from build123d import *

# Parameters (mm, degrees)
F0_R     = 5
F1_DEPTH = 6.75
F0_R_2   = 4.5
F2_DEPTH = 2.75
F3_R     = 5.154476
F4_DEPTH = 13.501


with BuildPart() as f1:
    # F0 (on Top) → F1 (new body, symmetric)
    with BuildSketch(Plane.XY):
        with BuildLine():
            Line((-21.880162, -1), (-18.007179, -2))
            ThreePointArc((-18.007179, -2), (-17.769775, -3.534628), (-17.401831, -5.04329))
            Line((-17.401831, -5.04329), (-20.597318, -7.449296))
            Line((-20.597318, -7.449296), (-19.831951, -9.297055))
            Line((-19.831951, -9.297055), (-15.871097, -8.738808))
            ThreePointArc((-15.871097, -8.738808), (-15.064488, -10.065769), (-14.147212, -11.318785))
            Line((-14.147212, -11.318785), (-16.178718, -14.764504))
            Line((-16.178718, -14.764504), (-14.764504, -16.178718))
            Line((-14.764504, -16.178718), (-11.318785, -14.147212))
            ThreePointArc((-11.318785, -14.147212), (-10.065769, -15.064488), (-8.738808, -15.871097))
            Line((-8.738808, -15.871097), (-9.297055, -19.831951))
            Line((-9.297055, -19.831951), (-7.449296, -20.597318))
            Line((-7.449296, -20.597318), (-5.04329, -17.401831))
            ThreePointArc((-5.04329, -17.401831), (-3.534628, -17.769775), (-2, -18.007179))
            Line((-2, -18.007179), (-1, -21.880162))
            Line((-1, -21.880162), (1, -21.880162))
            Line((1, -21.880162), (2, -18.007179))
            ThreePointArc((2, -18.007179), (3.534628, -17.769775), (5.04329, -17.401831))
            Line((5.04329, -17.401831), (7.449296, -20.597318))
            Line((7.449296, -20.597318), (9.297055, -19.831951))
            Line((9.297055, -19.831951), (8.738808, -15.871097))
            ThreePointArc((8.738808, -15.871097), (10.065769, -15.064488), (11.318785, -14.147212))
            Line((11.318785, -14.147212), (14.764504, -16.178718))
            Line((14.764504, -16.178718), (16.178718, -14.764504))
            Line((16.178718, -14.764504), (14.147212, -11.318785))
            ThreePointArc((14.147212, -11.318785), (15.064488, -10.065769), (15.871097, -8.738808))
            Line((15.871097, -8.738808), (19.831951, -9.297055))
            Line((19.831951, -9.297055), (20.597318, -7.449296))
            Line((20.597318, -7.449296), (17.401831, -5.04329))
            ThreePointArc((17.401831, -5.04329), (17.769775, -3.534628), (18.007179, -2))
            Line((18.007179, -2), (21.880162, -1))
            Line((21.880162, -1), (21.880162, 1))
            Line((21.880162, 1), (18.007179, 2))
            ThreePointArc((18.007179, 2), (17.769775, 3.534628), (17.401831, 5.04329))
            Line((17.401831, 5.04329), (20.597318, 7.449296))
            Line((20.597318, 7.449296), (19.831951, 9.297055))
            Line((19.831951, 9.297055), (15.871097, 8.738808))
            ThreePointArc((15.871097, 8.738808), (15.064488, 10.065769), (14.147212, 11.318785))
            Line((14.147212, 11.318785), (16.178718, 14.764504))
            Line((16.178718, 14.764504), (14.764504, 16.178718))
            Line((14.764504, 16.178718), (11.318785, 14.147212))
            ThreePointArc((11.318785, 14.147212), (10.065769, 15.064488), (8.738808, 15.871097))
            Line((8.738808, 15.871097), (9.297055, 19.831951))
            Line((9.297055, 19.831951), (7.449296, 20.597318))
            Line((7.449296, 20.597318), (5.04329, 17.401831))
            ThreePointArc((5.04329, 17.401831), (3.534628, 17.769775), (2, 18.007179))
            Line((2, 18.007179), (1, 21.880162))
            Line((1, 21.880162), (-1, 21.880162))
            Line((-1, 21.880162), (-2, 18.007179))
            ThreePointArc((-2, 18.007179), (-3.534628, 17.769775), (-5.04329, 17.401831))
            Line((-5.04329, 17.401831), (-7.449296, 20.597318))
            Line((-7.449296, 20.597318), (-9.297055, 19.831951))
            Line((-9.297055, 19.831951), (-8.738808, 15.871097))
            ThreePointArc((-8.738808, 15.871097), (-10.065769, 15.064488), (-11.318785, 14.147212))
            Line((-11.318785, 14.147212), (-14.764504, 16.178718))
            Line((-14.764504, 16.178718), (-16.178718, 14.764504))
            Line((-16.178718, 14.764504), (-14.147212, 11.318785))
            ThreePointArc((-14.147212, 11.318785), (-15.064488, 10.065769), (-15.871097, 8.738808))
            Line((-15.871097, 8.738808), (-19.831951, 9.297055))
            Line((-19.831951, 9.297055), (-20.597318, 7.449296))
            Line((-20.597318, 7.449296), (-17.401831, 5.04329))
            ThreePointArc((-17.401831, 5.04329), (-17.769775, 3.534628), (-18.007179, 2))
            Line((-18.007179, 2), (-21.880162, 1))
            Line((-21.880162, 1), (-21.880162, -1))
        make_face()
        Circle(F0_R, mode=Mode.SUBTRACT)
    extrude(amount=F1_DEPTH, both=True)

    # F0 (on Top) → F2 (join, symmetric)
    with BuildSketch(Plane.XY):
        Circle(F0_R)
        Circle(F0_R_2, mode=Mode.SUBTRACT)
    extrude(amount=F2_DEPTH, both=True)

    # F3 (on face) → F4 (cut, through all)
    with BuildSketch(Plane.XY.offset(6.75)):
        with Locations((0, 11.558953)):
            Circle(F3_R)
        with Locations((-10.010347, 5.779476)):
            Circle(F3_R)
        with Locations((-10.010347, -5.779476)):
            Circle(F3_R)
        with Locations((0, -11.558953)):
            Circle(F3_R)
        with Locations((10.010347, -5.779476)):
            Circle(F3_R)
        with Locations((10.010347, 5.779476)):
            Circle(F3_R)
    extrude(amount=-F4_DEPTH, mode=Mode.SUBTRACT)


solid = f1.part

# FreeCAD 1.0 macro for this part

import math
import FreeCAD as App
import Part
import Sketcher
from FreeCAD import Vector
Q = App.Units.Quantity

doc = App.newDocument("Part")
body = doc.addObject("PartDesign::Body", "Body")

sketch1 = body.newObject("Sketcher::SketchObject", "Sketch")
sketch1.AttachmentSupport = (doc.getObject("XY_Plane"), [""])
sketch1.MapMode = "FlatFace"
sketch1.addGeometry([
    Part.LineSegment(Vector(-21.880162, -1, 0), Vector(-18.007179, -2, 0)),
    Part.ArcOfCircle(Part.Circle(Vector(-0.000021, -0.000004, 0), Vector(0, 0, 1), 18.117884), math.radians(-173.662321), math.radians(-163.837679)),
    Part.LineSegment(Vector(-17.401831, -5.04329, 0), Vector(-20.597318, -7.449296, 0)),
    Part.LineSegment(Vector(-20.597318, -7.449296, 0), Vector(-19.831951, -9.297055, 0)),
    Part.LineSegment(Vector(-19.831951, -9.297055, 0), Vector(-15.871097, -8.738808, 0)),
    Part.ArcOfCircle(Part.Circle(Vector(-0.000067, -0.000048, 0), Vector(0, 0, 1), 18.117823), math.radians(-151.162346), math.radians(-141.33767)),
    Part.LineSegment(Vector(-14.147212, -11.318785, 0), Vector(-16.178718, -14.764504, 0)),
    Part.LineSegment(Vector(-16.178718, -14.764504, 0), Vector(-14.764504, -16.178718, 0)),
    Part.LineSegment(Vector(-14.764504, -16.178718, 0), Vector(-11.318785, -14.147212, 0)),
    Part.ArcOfCircle(Part.Circle(Vector(-0.000048, -0.000067, 0), Vector(0, 0, 1), 18.117823), math.radians(-128.66233), math.radians(-118.837654)),
    Part.LineSegment(Vector(-8.738808, -15.871097, 0), Vector(-9.297055, -19.831951, 0)),
    Part.LineSegment(Vector(-9.297055, -19.831951, 0), Vector(-7.449296, -20.597318, 0)),
    Part.LineSegment(Vector(-7.449296, -20.597318, 0), Vector(-5.04329, -17.401831, 0)),
    Part.ArcOfCircle(Part.Circle(Vector(-0.000004, -0.000021, 0), Vector(0, 0, 1), 18.117884), math.radians(-106.162321), math.radians(-96.337679)),
    Part.LineSegment(Vector(-2, -18.007179, 0), Vector(-1, -21.880162, 0)),
    Part.LineSegment(Vector(-1, -21.880162, 0), Vector(1, -21.880162, 0)),
    Part.LineSegment(Vector(1, -21.880162, 0), Vector(2, -18.007179, 0)),
    Part.ArcOfCircle(Part.Circle(Vector(0.000004, -0.000021, 0), Vector(0, 0, 1), 18.117884), math.radians(-83.662321), math.radians(-73.837679)),
    Part.LineSegment(Vector(5.04329, -17.401831, 0), Vector(7.449296, -20.597318, 0)),
    Part.LineSegment(Vector(7.449296, -20.597318, 0), Vector(9.297055, -19.831951, 0)),
    Part.LineSegment(Vector(9.297055, -19.831951, 0), Vector(8.738808, -15.871097, 0)),
    Part.ArcOfCircle(Part.Circle(Vector(0.000048, -0.000067, 0), Vector(0, 0, 1), 18.117823), math.radians(-61.162346), math.radians(-51.33767)),
    Part.LineSegment(Vector(11.318785, -14.147212, 0), Vector(14.764504, -16.178718, 0)),
    Part.LineSegment(Vector(14.764504, -16.178718, 0), Vector(16.178718, -14.764504, 0)),
    Part.LineSegment(Vector(16.178718, -14.764504, 0), Vector(14.147212, -11.318785, 0)),
    Part.ArcOfCircle(Part.Circle(Vector(0.000067, -0.000048, 0), Vector(0, 0, 1), 18.117823), math.radians(-38.66233), math.radians(-28.837654)),
    Part.LineSegment(Vector(15.871097, -8.738808, 0), Vector(19.831951, -9.297055, 0)),
    Part.LineSegment(Vector(19.831951, -9.297055, 0), Vector(20.597318, -7.449296, 0)),
    Part.LineSegment(Vector(20.597318, -7.449296, 0), Vector(17.401831, -5.04329, 0)),
    Part.ArcOfCircle(Part.Circle(Vector(0.000021, -0.000004, 0), Vector(0, 0, 1), 18.117884), math.radians(-16.162321), math.radians(-6.337679)),
    Part.LineSegment(Vector(18.007179, -2, 0), Vector(21.880162, -1, 0)),
    Part.LineSegment(Vector(21.880162, -1, 0), Vector(21.880162, 1, 0)),
    Part.LineSegment(Vector(21.880162, 1, 0), Vector(18.007179, 2, 0)),
    Part.ArcOfCircle(Part.Circle(Vector(0.000021, 0.000004, 0), Vector(0, 0, 1), 18.117884), math.radians(6.337679), math.radians(16.162321)),
    Part.LineSegment(Vector(17.401831, 5.04329, 0), Vector(20.597318, 7.449296, 0)),
    Part.LineSegment(Vector(20.597318, 7.449296, 0), Vector(19.831951, 9.297055, 0)),
    Part.LineSegment(Vector(19.831951, 9.297055, 0), Vector(15.871097, 8.738808, 0)),
    Part.ArcOfCircle(Part.Circle(Vector(0.000067, 0.000048, 0), Vector(0, 0, 1), 18.117823), math.radians(28.837654), math.radians(38.66233)),
    Part.LineSegment(Vector(14.147212, 11.318785, 0), Vector(16.178718, 14.764504, 0)),
    Part.LineSegment(Vector(16.178718, 14.764504, 0), Vector(14.764504, 16.178718, 0)),
    Part.LineSegment(Vector(14.764504, 16.178718, 0), Vector(11.318785, 14.147212, 0)),
    Part.ArcOfCircle(Part.Circle(Vector(0.000048, 0.000067, 0), Vector(0, 0, 1), 18.117823), math.radians(51.33767), math.radians(61.162346)),
    Part.LineSegment(Vector(8.738808, 15.871097, 0), Vector(9.297055, 19.831951, 0)),
    Part.LineSegment(Vector(9.297055, 19.831951, 0), Vector(7.449296, 20.597318, 0)),
    Part.LineSegment(Vector(7.449296, 20.597318, 0), Vector(5.04329, 17.401831, 0)),
    Part.ArcOfCircle(Part.Circle(Vector(0.000004, 0.000021, 0), Vector(0, 0, 1), 18.117884), math.radians(73.837679), math.radians(83.662321)),
    Part.LineSegment(Vector(2, 18.007179, 0), Vector(1, 21.880162, 0)),
    Part.LineSegment(Vector(1, 21.880162, 0), Vector(-1, 21.880162, 0)),
    Part.LineSegment(Vector(-1, 21.880162, 0), Vector(-2, 18.007179, 0)),
    Part.ArcOfCircle(Part.Circle(Vector(-0.000004, 0.000021, 0), Vector(0, 0, 1), 18.117884), math.radians(96.337679), math.radians(106.162321)),
    Part.LineSegment(Vector(-5.04329, 17.401831, 0), Vector(-7.449296, 20.597318, 0)),
    Part.LineSegment(Vector(-7.449296, 20.597318, 0), Vector(-9.297055, 19.831951, 0)),
    Part.LineSegment(Vector(-9.297055, 19.831951, 0), Vector(-8.738808, 15.871097, 0)),
    Part.ArcOfCircle(Part.Circle(Vector(-0.000048, 0.000067, 0), Vector(0, 0, 1), 18.117823), math.radians(118.837654), math.radians(128.66233)),
    Part.LineSegment(Vector(-11.318785, 14.147212, 0), Vector(-14.764504, 16.178718, 0)),
    Part.LineSegment(Vector(-14.764504, 16.178718, 0), Vector(-16.178718, 14.764504, 0)),
    Part.LineSegment(Vector(-16.178718, 14.764504, 0), Vector(-14.147212, 11.318785, 0)),
    Part.ArcOfCircle(Part.Circle(Vector(-0.000067, 0.000048, 0), Vector(0, 0, 1), 18.117823), math.radians(141.33767), math.radians(151.162346)),
    Part.LineSegment(Vector(-15.871097, 8.738808, 0), Vector(-19.831951, 9.297055, 0)),
    Part.LineSegment(Vector(-19.831951, 9.297055, 0), Vector(-20.597318, 7.449296, 0)),
    Part.LineSegment(Vector(-20.597318, 7.449296, 0), Vector(-17.401831, 5.04329, 0)),
    Part.ArcOfCircle(Part.Circle(Vector(-0.000021, 0.000004, 0), Vector(0, 0, 1), 18.117884), math.radians(163.837679), math.radians(173.662321)),
    Part.LineSegment(Vector(-18.007179, 2, 0), Vector(-21.880162, 1, 0)),
    Part.LineSegment(Vector(-21.880162, 1, 0), Vector(-21.880162, -1, 0)),
    Part.Circle(Vector(0, 0, 0), Vector(0, 0, 1), 5),
], False)
sketch1.addConstraint([
    Sketcher.Constraint("Coincident", 0, 2, 1, 1),
    Sketcher.Constraint("Coincident", 1, 2, 2, 1),
    Sketcher.Constraint("Coincident", 2, 2, 3, 1),
    Sketcher.Constraint("Coincident", 3, 2, 4, 1),
    Sketcher.Constraint("Coincident", 4, 2, 5, 1),
    Sketcher.Constraint("Coincident", 5, 2, 6, 1),
    Sketcher.Constraint("Coincident", 6, 2, 7, 1),
    Sketcher.Constraint("Coincident", 7, 2, 8, 1),
    Sketcher.Constraint("Coincident", 8, 2, 9, 1),
    Sketcher.Constraint("Coincident", 9, 2, 10, 1),
    Sketcher.Constraint("Coincident", 10, 2, 11, 1),
    Sketcher.Constraint("Coincident", 11, 2, 12, 1),
    Sketcher.Constraint("Coincident", 12, 2, 13, 1),
    Sketcher.Constraint("Coincident", 13, 2, 14, 1),
    Sketcher.Constraint("Coincident", 14, 2, 15, 1),
    Sketcher.Constraint("Coincident", 15, 2, 16, 1),
    Sketcher.Constraint("Coincident", 16, 2, 17, 1),
    Sketcher.Constraint("Coincident", 17, 2, 18, 1),
    Sketcher.Constraint("Coincident", 18, 2, 19, 1),
    Sketcher.Constraint("Coincident", 19, 2, 20, 1),
    Sketcher.Constraint("Coincident", 20, 2, 21, 1),
    Sketcher.Constraint("Coincident", 21, 2, 22, 1),
    Sketcher.Constraint("Coincident", 22, 2, 23, 1),
    Sketcher.Constraint("Coincident", 23, 2, 24, 1),
    Sketcher.Constraint("Coincident", 24, 2, 25, 1),
    Sketcher.Constraint("Coincident", 25, 2, 26, 1),
    Sketcher.Constraint("Coincident", 26, 2, 27, 1),
    Sketcher.Constraint("Coincident", 27, 2, 28, 1),
    Sketcher.Constraint("Coincident", 28, 2, 29, 1),
    Sketcher.Constraint("Coincident", 29, 2, 30, 1),
    Sketcher.Constraint("Coincident", 30, 2, 31, 1),
    Sketcher.Constraint("Coincident", 31, 2, 32, 1),
    Sketcher.Constraint("Coincident", 32, 2, 33, 1),
    Sketcher.Constraint("Coincident", 33, 2, 34, 1),
    Sketcher.Constraint("Coincident", 34, 2, 35, 1),
    Sketcher.Constraint("Coincident", 35, 2, 36, 1),
    Sketcher.Constraint("Coincident", 36, 2, 37, 1),
    Sketcher.Constraint("Coincident", 37, 2, 38, 1),
    Sketcher.Constraint("Coincident", 38, 2, 39, 1),
    Sketcher.Constraint("Coincident", 39, 2, 40, 1),
    Sketcher.Constraint("Coincident", 40, 2, 41, 1),
    Sketcher.Constraint("Coincident", 41, 2, 42, 1),
    Sketcher.Constraint("Coincident", 42, 2, 43, 1),
    Sketcher.Constraint("Coincident", 43, 2, 44, 1),
    Sketcher.Constraint("Coincident", 44, 2, 45, 1),
    Sketcher.Constraint("Coincident", 45, 2, 46, 1),
    Sketcher.Constraint("Coincident", 46, 2, 47, 1),
    Sketcher.Constraint("Coincident", 47, 2, 48, 1),
    Sketcher.Constraint("Coincident", 48, 2, 49, 1),
    Sketcher.Constraint("Coincident", 49, 2, 50, 1),
    Sketcher.Constraint("Coincident", 50, 2, 51, 1),
    Sketcher.Constraint("Coincident", 51, 2, 52, 1),
    Sketcher.Constraint("Coincident", 52, 2, 53, 1),
    Sketcher.Constraint("Coincident", 53, 2, 54, 1),
    Sketcher.Constraint("Coincident", 54, 2, 55, 1),
    Sketcher.Constraint("Coincident", 55, 2, 56, 1),
    Sketcher.Constraint("Coincident", 56, 2, 57, 1),
    Sketcher.Constraint("Coincident", 57, 2, 58, 1),
    Sketcher.Constraint("Coincident", 58, 2, 59, 1),
    Sketcher.Constraint("Coincident", 59, 2, 60, 1),
    Sketcher.Constraint("Coincident", 60, 2, 61, 1),
    Sketcher.Constraint("Coincident", 61, 2, 62, 1),
    Sketcher.Constraint("Coincident", 62, 2, 63, 1),
    Sketcher.Constraint("Coincident", 63, 2, 0, 1),
    Sketcher.Constraint("Horizontal", 15),
    Sketcher.Constraint("Vertical", 31),
    Sketcher.Constraint("Horizontal", 47),
    Sketcher.Constraint("Vertical", 63),
    Sketcher.Constraint("Coincident", 64, 3, -1, 1),
    Sketcher.Constraint("Coincident", 17, 3, 13, 3),
    Sketcher.Constraint("Coincident", 33, 3, 29, 3),
    Sketcher.Constraint("Coincident", 49, 3, 45, 3),
    Sketcher.Constraint("Coincident", 61, 3, 1, 3),
    Sketcher.Constraint("Equal", 5, 9),
    Sketcher.Constraint("Equal", 1, 13),
    Sketcher.Constraint("Equal", 13, 17),
    Sketcher.Constraint("Equal", 9, 21),
    Sketcher.Constraint("Equal", 21, 25),
    Sketcher.Constraint("Equal", 17, 29),
    Sketcher.Constraint("Equal", 29, 33),
    Sketcher.Constraint("Equal", 25, 37),
    Sketcher.Constraint("Equal", 37, 41),
    Sketcher.Constraint("Equal", 33, 45),
    Sketcher.Constraint("Equal", 45, 49),
    Sketcher.Constraint("Equal", 41, 53),
    Sketcher.Constraint("Equal", 53, 57),
    Sketcher.Constraint("Equal", 49, 61),
    Sketcher.Constraint("Symmetric", 1, 3, 29, 3, -1, 1),
    Sketcher.Constraint("Symmetric", 5, 3, 37, 3, -1, 1),
    Sketcher.Constraint("Symmetric", 9, 3, 41, 3, -1, 1),
    Sketcher.Constraint("Symmetric", 13, 3, 45, 3, -1, 1),
    Sketcher.Constraint("Symmetric", 21, 3, 53, 3, -1, 1),
    Sketcher.Constraint("Symmetric", 25, 3, 57, 3, -1, 1),
    Sketcher.Constraint("Symmetric", 2, 2, 34, 2, -1, 1),
    Sketcher.Constraint("Symmetric", 3, 2, 35, 2, -1, 1),
    Sketcher.Constraint("Symmetric", 6, 2, 38, 2, -1, 1),
    Sketcher.Constraint("Symmetric", 7, 2, 39, 2, -1, 1),
    Sketcher.Constraint("Symmetric", 10, 2, 42, 2, -1, 1),
    Sketcher.Constraint("Symmetric", 11, 2, 43, 2, -1, 1),
    Sketcher.Constraint("Symmetric", 14, 2, 46, 2, -1, 1),
    Sketcher.Constraint("Symmetric", 18, 2, 50, 2, -1, 1),
    Sketcher.Constraint("Symmetric", 19, 2, 51, 2, -1, 1),
    Sketcher.Constraint("Symmetric", 22, 2, 54, 2, -1, 1),
    Sketcher.Constraint("Symmetric", 23, 2, 55, 2, -1, 1),
    Sketcher.Constraint("Symmetric", 26, 2, 58, 2, -1, 1),
    Sketcher.Constraint("Symmetric", 27, 2, 59, 2, -1, 1),
    Sketcher.Constraint("Symmetric", 30, 2, 62, 2, -1, 1),
    Sketcher.Constraint("Symmetric", 9, 3, 21, 3, -2),
    Sketcher.Constraint("Symmetric", 5, 3, 25, 3, -2),
    Sketcher.Constraint("Symmetric", 13, 2, 16, 2, -2),
    Sketcher.Constraint("Symmetric", 11, 2, 18, 2, -2),
    Sketcher.Constraint("Symmetric", 10, 2, 19, 2, -2),
    Sketcher.Constraint("Symmetric", 7, 2, 22, 2, -2),
    Sketcher.Constraint("Symmetric", 6, 2, 23, 2, -2),
    Sketcher.Constraint("Symmetric", 3, 2, 26, 2, -2),
    Sketcher.Constraint("Symmetric", 2, 2, 27, 2, -2),
    Sketcher.Constraint("Symmetric", 1, 2, 28, 2, -2),
    Sketcher.Constraint("Perpendicular", 0, 16),
    Sketcher.Constraint("Perpendicular", 2, 18),
    Sketcher.Constraint("Perpendicular", 3, 19),
    Sketcher.Constraint("Perpendicular", 4, 20),
    Sketcher.Constraint("Perpendicular", 6, 22),
    Sketcher.Constraint("Perpendicular", 7, 23),
    Sketcher.Constraint("Perpendicular", 8, 24),
    Sketcher.Constraint("Perpendicular", 10, 26),
    Sketcher.Constraint("Perpendicular", 12, 28),
    Sketcher.Constraint("Perpendicular", 14, 30),
    Sketcher.Constraint("Perpendicular", 16, 32),
    Sketcher.Constraint("Perpendicular", 18, 34),
    Sketcher.Constraint("Perpendicular", 20, 36),
    Sketcher.Constraint("Perpendicular", 22, 38),
    Sketcher.Constraint("Perpendicular", 24, 40),
    Sketcher.Constraint("Perpendicular", 26, 42),
    Sketcher.Constraint("Perpendicular", 28, 44),
    Sketcher.Constraint("Perpendicular", 30, 46),
    Sketcher.Constraint("Perpendicular", 32, 48),
    Sketcher.Constraint("Perpendicular", 34, 50),
    Sketcher.Constraint("Perpendicular", 36, 52),
    Sketcher.Constraint("Perpendicular", 38, 54),
    Sketcher.Constraint("Perpendicular", 40, 56),
    Sketcher.Constraint("Perpendicular", 42, 58),
    Sketcher.Constraint("Perpendicular", 44, 60),
    Sketcher.Constraint("Perpendicular", 46, 62),
    Sketcher.Constraint("Horizontal", 9, 2, 20, 2),
    Sketcher.Constraint("Horizontal", 8, 2, 21, 2),
    Sketcher.Constraint("Horizontal", 0, 2, 29, 2),
    Sketcher.Constraint("Horizontal", 45, 2, 48, 2),
    Sketcher.Constraint("Horizontal", 32, 2, 61, 2),
    Sketcher.Constraint("Horizontal", 31, 2, 62, 2),
    Sketcher.Constraint("Equal", 47, 31),
    Sketcher.Constraint("Equal", 0, 2),
    Sketcher.Constraint("Equal", 2, 4),
    Sketcher.Constraint("Equal", 4, 6),
    Sketcher.Constraint("Equal", 3, 7),
    Sketcher.Constraint("Equal", 6, 8),
    Sketcher.Constraint("Equal", 8, 10),
    Sketcher.Constraint("Equal", 7, 11),
    Sketcher.Constraint("Equal", 10, 12),
    Sketcher.Constraint("Equal", 12, 14),
    Sketcher.Constraint("Diameter", 64, Q("10 mm")),
    Sketcher.Constraint("DistanceX", 15, 1, 15, 2, Q("2 mm")),
    Sketcher.Constraint("Distance", 0, Q("4 mm")),
    Sketcher.Constraint("Distance", 3, Q("2 mm")),
    Sketcher.Constraint("DistanceY", 0, 2, -1, 1, Q("2 mm")),
    Sketcher.Constraint("Angle", 3, Q("-67.499996 deg")),
    Sketcher.Constraint("Radius", 1, Q("18.117884 mm")),
    Sketcher.Constraint("Radius", 5, Q("18.117823 mm")),
    Sketcher.Constraint("DistanceX", 0, 2, -1, 1, Q("18.007179 mm")),
    Sketcher.Constraint("DistanceX", 1, 2, -1, 1, Q("17.401831 mm")),
    Sketcher.Constraint("DistanceX", 2, 2, -1, 1, Q("20.597318 mm")),
    Sketcher.Constraint("DistanceX", 6, 2, -1, 1, Q("16.178718 mm")),
    Sketcher.Constraint("DistanceY", 7, 2, -1, 1, Q("16.178718 mm")),
    Sketcher.Constraint("DistanceX", 9, 2, -1, 1, Q("8.738808 mm")),
    Sketcher.Constraint("DistanceY", 10, 2, -1, 1, Q("19.831951 mm")),
    Sketcher.Constraint("DistanceX", 12, 2, -1, 1, Q("5.04329 mm")),
    Sketcher.Constraint("DistanceX", 5, 2, -1, 1, Q("14.147212 mm")),
])
pad1 = body.newObject("PartDesign::Pad", "Pad")
pad1.Profile = sketch1
pad1.Length = 13.5
pad1.Midplane = True

sketch2 = body.newObject("Sketcher::SketchObject", "Sketch001")
sketch2.AttachmentSupport = (doc.getObject("XY_Plane"), [""])
sketch2.MapMode = "FlatFace"
sketch2.addGeometry([
    Part.Circle(Vector(0, 0, 0), Vector(0, 0, 1), 5),
    Part.Circle(Vector(0, 0, 0), Vector(0, 0, 1), 4.5),
], False)
sketch2.addConstraint([
    Sketcher.Constraint("Coincident", 0, 3, -1, 1),
    Sketcher.Constraint("Coincident", 1, 3, -1, 1),
    Sketcher.Constraint("Diameter", 0, Q("10 mm")),
    Sketcher.Constraint("Diameter", 1, Q("9 mm")),
])
pad2 = body.newObject("PartDesign::Pad", "Pad001")
pad2.Profile = sketch2
pad2.Length = 5.5
pad2.Midplane = True

sketch3 = body.newObject("Sketcher::SketchObject", "Sketch002")
sketch3.AttachmentSupport = (doc.getObject("XY_Plane"), [""])
sketch3.MapMode = "FlatFace"
sketch3.AttachmentOffset = App.Placement(Vector(0, 0, 6.75), App.Rotation())
sketch3.addGeometry([
    Part.Circle(Vector(0, 12, 0), Vector(0, 0, 1), 5),
    Part.Circle(Vector(-10, 6, 0), Vector(0, 0, 1), 5),
    Part.Circle(Vector(-10, -6, 0), Vector(0, 0, 1), 5),
    Part.Circle(Vector(0, -12, 0), Vector(0, 0, 1), 5),
    Part.Circle(Vector(10, -6, 0), Vector(0, 0, 1), 5),
    Part.Circle(Vector(10, 6, 0), Vector(0, 0, 1), 5),
], False)
sketch3.addConstraint([
    Sketcher.Constraint("Equal", 0, 1),
    Sketcher.Constraint("Equal", 1, 2),
    Sketcher.Constraint("Equal", 2, 3),
    Sketcher.Constraint("Equal", 3, 4),
    Sketcher.Constraint("Equal", 4, 5),
    Sketcher.Constraint("Symmetric", 0, 3, 3, 3, -1, 1),
    Sketcher.Constraint("Symmetric", 1, 3, 4, 3, -1, 1),
    Sketcher.Constraint("Symmetric", 2, 3, 5, 3, -1, 1),
    Sketcher.Constraint("Symmetric", 2, 3, 4, 3, -2),
    Sketcher.Constraint("PointOnObject", 0, 3, -2),
    Sketcher.Constraint("Diameter", 0, Q("10.308952 mm")),
    Sketcher.Constraint("DistanceY", 2, 3, 0, 3, Q("17.338429 mm")),
    Sketcher.Constraint("DistanceY", -1, 1, 0, 3, Q("11.558953 mm")),
    Sketcher.Constraint("DistanceX", 1, 3, -1, 1, Q("10.010347 mm")),
])
pocket1 = body.newObject("PartDesign::Pocket", "Pocket")
pocket1.Profile = sketch3
pocket1.Type = "ThroughAll"

doc.recompute()
